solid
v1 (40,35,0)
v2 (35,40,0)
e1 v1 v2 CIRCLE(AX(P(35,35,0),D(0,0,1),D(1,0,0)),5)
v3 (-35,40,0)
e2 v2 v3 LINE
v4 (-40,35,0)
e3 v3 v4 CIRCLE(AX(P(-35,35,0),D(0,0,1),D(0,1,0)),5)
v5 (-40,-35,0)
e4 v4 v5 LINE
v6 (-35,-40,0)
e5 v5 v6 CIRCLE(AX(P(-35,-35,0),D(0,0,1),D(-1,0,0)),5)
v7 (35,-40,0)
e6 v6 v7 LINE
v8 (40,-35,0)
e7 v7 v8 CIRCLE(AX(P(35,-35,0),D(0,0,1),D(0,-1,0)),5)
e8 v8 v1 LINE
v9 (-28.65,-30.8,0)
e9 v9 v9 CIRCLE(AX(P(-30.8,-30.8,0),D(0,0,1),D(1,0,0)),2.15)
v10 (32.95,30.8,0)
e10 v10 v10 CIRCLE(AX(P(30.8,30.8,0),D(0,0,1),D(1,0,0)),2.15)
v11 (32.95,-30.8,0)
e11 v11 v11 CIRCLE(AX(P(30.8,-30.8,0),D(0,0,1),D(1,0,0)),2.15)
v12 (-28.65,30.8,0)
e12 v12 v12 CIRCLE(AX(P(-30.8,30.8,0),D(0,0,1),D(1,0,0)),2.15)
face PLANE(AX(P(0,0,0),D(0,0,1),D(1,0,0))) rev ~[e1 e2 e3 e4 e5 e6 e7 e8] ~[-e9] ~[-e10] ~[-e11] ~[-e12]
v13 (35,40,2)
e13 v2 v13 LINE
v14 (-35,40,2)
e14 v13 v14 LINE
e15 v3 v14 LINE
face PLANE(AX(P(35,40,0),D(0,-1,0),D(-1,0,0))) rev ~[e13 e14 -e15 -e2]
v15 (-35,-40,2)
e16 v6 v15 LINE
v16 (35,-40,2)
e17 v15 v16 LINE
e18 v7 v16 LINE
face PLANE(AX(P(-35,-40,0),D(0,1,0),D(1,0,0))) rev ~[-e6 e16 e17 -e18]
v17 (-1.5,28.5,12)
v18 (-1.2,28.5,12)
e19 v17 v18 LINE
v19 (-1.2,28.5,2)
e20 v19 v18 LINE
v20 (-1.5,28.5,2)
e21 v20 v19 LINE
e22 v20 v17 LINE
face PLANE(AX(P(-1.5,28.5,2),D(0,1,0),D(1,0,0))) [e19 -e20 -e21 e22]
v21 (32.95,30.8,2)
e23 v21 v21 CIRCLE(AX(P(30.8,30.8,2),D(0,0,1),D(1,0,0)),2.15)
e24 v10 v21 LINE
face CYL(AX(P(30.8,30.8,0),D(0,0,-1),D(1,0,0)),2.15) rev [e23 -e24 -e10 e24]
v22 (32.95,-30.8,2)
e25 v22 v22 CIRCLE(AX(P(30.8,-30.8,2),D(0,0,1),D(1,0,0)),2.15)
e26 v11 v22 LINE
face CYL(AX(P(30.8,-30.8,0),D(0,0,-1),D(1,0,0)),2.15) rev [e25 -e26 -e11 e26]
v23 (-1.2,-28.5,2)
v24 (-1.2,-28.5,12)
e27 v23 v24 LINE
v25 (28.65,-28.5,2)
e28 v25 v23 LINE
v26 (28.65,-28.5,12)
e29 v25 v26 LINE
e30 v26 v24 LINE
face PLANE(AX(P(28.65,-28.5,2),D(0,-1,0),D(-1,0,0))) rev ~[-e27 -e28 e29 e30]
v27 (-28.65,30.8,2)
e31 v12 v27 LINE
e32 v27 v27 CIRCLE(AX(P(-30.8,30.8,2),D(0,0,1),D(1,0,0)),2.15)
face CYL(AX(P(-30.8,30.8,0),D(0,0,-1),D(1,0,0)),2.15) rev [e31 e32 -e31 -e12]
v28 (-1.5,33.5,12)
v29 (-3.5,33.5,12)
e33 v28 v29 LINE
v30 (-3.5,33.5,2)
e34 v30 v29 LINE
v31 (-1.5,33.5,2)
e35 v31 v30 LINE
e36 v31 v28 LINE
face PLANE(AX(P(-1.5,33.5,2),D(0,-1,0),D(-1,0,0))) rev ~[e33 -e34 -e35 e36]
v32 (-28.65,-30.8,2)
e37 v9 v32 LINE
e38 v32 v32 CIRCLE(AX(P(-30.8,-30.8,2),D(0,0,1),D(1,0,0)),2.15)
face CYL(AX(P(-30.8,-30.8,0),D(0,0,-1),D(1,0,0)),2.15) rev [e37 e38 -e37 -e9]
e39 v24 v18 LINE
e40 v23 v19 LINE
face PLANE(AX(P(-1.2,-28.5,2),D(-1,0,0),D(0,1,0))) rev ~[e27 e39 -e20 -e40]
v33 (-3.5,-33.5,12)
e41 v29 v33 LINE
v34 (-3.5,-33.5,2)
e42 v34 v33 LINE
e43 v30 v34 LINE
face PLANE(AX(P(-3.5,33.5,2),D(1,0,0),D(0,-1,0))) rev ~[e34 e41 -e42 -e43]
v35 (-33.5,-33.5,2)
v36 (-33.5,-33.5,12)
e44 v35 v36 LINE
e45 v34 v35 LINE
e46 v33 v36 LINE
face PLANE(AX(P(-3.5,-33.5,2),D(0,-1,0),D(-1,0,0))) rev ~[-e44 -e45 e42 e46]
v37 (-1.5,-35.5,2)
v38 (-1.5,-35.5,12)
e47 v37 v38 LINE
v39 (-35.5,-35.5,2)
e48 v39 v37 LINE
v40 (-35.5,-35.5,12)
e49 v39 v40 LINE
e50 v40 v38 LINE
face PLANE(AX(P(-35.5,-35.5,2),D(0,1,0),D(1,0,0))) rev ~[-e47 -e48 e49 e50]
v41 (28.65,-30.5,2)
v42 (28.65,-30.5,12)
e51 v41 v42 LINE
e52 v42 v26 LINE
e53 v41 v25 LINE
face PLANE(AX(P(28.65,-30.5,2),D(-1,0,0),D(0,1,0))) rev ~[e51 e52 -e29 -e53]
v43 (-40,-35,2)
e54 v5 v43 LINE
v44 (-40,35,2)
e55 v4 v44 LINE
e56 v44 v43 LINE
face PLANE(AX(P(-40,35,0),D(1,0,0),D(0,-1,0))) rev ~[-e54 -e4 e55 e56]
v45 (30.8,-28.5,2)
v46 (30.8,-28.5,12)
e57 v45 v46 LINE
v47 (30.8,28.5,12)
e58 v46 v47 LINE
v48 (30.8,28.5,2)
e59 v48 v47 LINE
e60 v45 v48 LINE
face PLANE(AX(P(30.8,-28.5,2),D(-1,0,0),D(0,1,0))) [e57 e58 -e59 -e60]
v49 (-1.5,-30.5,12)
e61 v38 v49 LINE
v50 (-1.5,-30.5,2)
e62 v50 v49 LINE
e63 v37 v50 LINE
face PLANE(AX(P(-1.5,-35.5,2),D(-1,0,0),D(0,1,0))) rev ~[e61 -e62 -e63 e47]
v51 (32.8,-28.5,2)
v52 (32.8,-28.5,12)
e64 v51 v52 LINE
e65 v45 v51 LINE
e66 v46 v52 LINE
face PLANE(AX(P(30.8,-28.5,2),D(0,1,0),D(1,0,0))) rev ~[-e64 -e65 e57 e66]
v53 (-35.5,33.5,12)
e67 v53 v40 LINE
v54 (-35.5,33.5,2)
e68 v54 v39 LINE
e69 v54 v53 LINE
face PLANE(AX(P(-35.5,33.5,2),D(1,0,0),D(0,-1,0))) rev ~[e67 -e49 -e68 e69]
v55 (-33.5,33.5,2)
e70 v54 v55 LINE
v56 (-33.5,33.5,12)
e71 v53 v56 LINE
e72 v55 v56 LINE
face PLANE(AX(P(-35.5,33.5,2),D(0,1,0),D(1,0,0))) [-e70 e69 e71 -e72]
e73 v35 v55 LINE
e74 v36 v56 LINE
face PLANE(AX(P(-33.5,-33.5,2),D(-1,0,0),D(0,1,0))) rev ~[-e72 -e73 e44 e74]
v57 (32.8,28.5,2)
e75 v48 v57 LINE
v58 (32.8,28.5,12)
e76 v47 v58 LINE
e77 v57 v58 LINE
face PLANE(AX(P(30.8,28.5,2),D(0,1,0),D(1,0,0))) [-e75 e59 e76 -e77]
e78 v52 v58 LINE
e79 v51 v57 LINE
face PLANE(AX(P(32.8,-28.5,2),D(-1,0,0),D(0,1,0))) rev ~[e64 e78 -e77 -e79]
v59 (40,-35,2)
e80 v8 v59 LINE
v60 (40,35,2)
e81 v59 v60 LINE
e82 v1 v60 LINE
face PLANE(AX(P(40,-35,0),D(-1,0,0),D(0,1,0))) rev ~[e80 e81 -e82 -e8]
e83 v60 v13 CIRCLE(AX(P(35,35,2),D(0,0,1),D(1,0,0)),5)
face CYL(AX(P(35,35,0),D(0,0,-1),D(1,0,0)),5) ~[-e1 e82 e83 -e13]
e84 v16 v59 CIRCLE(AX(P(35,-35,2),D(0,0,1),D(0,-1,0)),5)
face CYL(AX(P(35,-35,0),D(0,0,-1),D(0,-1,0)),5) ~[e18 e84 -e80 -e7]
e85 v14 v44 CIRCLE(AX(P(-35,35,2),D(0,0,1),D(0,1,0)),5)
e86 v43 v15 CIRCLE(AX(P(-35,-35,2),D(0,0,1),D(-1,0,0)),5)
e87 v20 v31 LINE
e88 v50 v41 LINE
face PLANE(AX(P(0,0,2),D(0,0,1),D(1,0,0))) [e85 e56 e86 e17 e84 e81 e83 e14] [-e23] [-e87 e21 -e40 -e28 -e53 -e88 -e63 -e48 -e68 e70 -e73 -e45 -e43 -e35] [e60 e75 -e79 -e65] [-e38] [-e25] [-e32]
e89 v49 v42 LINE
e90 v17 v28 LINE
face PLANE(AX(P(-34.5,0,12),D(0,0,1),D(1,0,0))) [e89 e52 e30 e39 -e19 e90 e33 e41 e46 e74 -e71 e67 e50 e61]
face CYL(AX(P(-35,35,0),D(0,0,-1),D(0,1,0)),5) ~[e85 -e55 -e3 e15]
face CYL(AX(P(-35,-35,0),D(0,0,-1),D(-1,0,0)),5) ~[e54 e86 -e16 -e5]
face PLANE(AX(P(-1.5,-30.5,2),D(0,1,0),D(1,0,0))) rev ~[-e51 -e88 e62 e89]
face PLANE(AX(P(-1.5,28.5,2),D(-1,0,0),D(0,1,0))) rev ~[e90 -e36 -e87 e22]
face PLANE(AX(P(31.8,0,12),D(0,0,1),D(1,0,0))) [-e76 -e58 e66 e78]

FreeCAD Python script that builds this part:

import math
import FreeCAD as App
import Part
import Sketcher

V = App.Vector
Q = App.Units.Quantity


def add_polygon(sketch, points):
    """Adds a closed chain of lines whose ends are joined by coincident constraints."""
    first, n = sketch.GeometryCount, len(points)
    for a, b in zip(points, points[1:] + points[:1]):
        sketch.addGeometry(Part.LineSegment(App.Vector(*a, 0), App.Vector(*b, 0)), False)
    for i in range(n):
        sketch.addConstraint(Sketcher.Constraint("Coincident", first + i, 2, first + (i + 1) % n, 1))

doc = App.newDocument("Part")
params = doc.addObject("Spreadsheet::Sheet", "Params")
for row, (alias, value) in enumerate([
    ("sketch1_radius", "5 mm"),
    ("sketch1_diameter", "4.3 mm"),
    ("sketch1_width", "70 mm"),
    ("pad1_length", "2 mm"),
    ("sketch2_width", "34 mm"),
    ("sketch2_width2", "2 mm"),
    ("sketch2_height", "69 mm"),
    ("sketch2_height2", "5 mm"),
    ("sketch2_height3", "67 mm"),
    ("pad2_length", "10 mm"),
], start=1):
    params.set(f"A{row}", alias)
    params.set(f"B{row}", "=" + value)
    params.setAlias(f"B{row}", alias)

body = doc.addObject("PartDesign::Body", "Body")

sketch1 = doc.addObject("Sketcher::SketchObject", "Sketch")
body.addObject(sketch1)
sketch1.AttachmentSupport = (doc.XY_Plane, [""])
sketch1.MapMode = "FlatFace"
sketch1.addGeometry(Part.LineSegment(V(-35, -40, 0), V(35, -40, 0)), False)
sketch1.addGeometry(Part.ArcOfCircle(Part.Circle(V(35, -35, 0), V(0, 0, 1), 5), math.radians(-90), math.radians(0)), False)
sketch1.addGeometry(Part.LineSegment(V(40, -35, 0), V(40, 35, 0)), False)
sketch1.addGeometry(Part.ArcOfCircle(Part.Circle(V(35, 35, 0), V(0, 0, 1), 5), math.radians(0), math.radians(90)), False)
sketch1.addGeometry(Part.LineSegment(V(35, 40, 0), V(-35, 40, 0)), False)
sketch1.addGeometry(Part.ArcOfCircle(Part.Circle(V(-35, 35, 0), V(0, 0, 1), 5), math.radians(90), math.radians(180)), False)
sketch1.addGeometry(Part.LineSegment(V(-40, 35, 0), V(-40, -35, 0)), False)
sketch1.addGeometry(Part.ArcOfCircle(Part.Circle(V(-35, -35, 0), V(0, 0, 1), 5), math.radians(180), math.radians(270)), False)
sketch1.addGeometry(Part.Circle(V(-30.8, -30.8, 0), V(0, 0, 1), 2.15), False)
sketch1.addGeometry(Part.Circle(V(30.8, -30.8, 0), V(0, 0, 1), 2.15), False)
sketch1.addGeometry(Part.Circle(V(-30.8, 30.8, 0), V(0, 0, 1), 2.15), False)
sketch1.addGeometry(Part.Circle(V(30.8, 30.8, 0), V(0, 0, 1), 2.15), False)
sketch1.addConstraint(Sketcher.Constraint("Tangent", 0, 2, 1, 1))
sketch1.addConstraint(Sketcher.Constraint("Tangent", 1, 2, 2, 1))
sketch1.addConstraint(Sketcher.Constraint("Tangent", 2, 2, 3, 1))
sketch1.addConstraint(Sketcher.Constraint("Tangent", 3, 2, 4, 1))
sketch1.addConstraint(Sketcher.Constraint("Tangent", 4, 2, 5, 1))
sketch1.addConstraint(Sketcher.Constraint("Tangent", 5, 2, 6, 1))
sketch1.addConstraint(Sketcher.Constraint("Tangent", 6, 2, 7, 1))
sketch1.addConstraint(Sketcher.Constraint("Tangent", 7, 2, 0, 1))
sketch1.addConstraint(Sketcher.Constraint("Horizontal", 0))
sketch1.addConstraint(Sketcher.Constraint("Vertical", 2))
sketch1.addConstraint(Sketcher.Constraint("Horizontal", 4))
sketch1.addConstraint(Sketcher.Constraint("Vertical", 6))
sketch1.addConstraint(Sketcher.Constraint("Equal", 1, 3))
sketch1.addConstraint(Sketcher.Constraint("Equal", 3, 5))
sketch1.addConstraint(Sketcher.Constraint("Equal", 5, 7))
sketch1.addConstraint(Sketcher.Constraint("Equal", 8, 9))
sketch1.addConstraint(Sketcher.Constraint("Equal", 9, 10))
sketch1.addConstraint(Sketcher.Constraint("Equal", 10, 11))
sketch1.addConstraint(Sketcher.Constraint("Symmetric", 1, 3, 5, 3, -1, 1))
sketch1.addConstraint(Sketcher.Constraint("Symmetric", 9, 3, 10, 3, -1, 1))
sketch1.addConstraint(Sketcher.Constraint("Symmetric", 8, 3, 11, 3, -1, 1))
sketch1.addConstraint(Sketcher.Constraint("Symmetric", 8, 3, 9, 3, -2))
sketch1.addConstraint(Sketcher.Constraint("Equal", 4, 2))
sketch1.addConstraint(Sketcher.Constraint("Radius", 1, Q("5 mm")))
sketch1.addConstraint(Sketcher.Constraint("Diameter", 8, Q("4.3 mm")))
sketch1.addConstraint(Sketcher.Constraint("DistanceX", 0, 1, 0, 2, Q("70 mm")))
sketch1.addConstraint(Sketcher.Constraint("DistanceX", 8, 3, -1, 1, Q("30.8 mm")))
sketch1.addConstraint(Sketcher.Constraint("DistanceY", 8, 3, -1, 1, Q("30.8 mm")))
sketch1.setExpression("Constraints[23]", "Params.sketch1_radius")
sketch1.setExpression("Constraints[24]", "Params.sketch1_diameter")
sketch1.setExpression("Constraints[25]", "Params.sketch1_width")
pad1 = doc.addObject("PartDesign::Pad", "Pad")
body.addObject(pad1)
pad1.Profile = sketch1
pad1.setExpression("Length", "Params.pad1_length")

sketch2 = doc.addObject("Sketcher::SketchObject", "Sketch001")
body.addObject(sketch2)
sketch2.AttachmentSupport = (doc.XY_Plane, [""])
sketch2.MapMode = "FlatFace"
sketch2.AttachmentOffset = App.Placement(V(0, 0, 2), App.Rotation())
add_polygon(sketch2, [(-35.5, 33.5), (-35.5, -35.5), (-1.5, -35.5), (-1.5, -30.5), (28.65, -30.5), (28.65, -28.5), (-1.2, -28.5), (-1.2, 28.5), (-1.5, 28.5), (-1.5, 33.5), (-3.5, 33.5), (-3.5, -33.5), (-33.5, -33.5), (-33.5, 33.5)])
add_polygon(sketch2, [(30.8, 28.5), (30.8, -28.5), (32.8, -28.5), (32.8, 28.5)])
sketch2.addConstraint(Sketcher.Constraint("Vertical", 0))
sketch2.addConstraint(Sketcher.Constraint("Horizontal", 1))
sketch2.addConstraint(Sketcher.Constraint("Vertical", 2))
sketch2.addConstraint(Sketcher.Constraint("Horizontal", 3))
sketch2.addConstraint(Sketcher.Constraint("Vertical", 4))
sketch2.addConstraint(Sketcher.Constraint("Horizontal", 5))
sketch2.addConstraint(Sketcher.Constraint("Vertical", 6))
sketch2.addConstraint(Sketcher.Constraint("Horizontal", 7))
sketch2.addConstraint(Sketcher.Constraint("Vertical", 8))
sketch2.addConstraint(Sketcher.Constraint("Horizontal", 9))
sketch2.addConstraint(Sketcher.Constraint("Vertical", 10))
sketch2.addConstraint(Sketcher.Constraint("Horizontal", 11))
sketch2.addConstraint(Sketcher.Constraint("Vertical", 12))
sketch2.addConstraint(Sketcher.Constraint("Horizontal", 13))
sketch2.addConstraint(Sketcher.Constraint("Vertical", 14))
sketch2.addConstraint(Sketcher.Constraint("Horizontal", 15))
sketch2.addConstraint(Sketcher.Constraint("Vertical", 16))
sketch2.addConstraint(Sketcher.Constraint("Horizontal", 17))
sketch2.addConstraint(Sketcher.Constraint("Horizontal", 9, 2, 12, 2))
sketch2.addConstraint(Sketcher.Constraint("Horizontal", 5, 2, 14, 2))
sketch2.addConstraint(Sketcher.Constraint("Horizontal", 7, 2, 16, 2))
sketch2.addConstraint(Sketcher.Constraint("Vertical", 2, 2, 7, 2))
sketch2.addConstraint(Sketcher.Constraint("Equal", 9, 13))
sketch2.addConstraint(Sketcher.Constraint("Equal", 13, 15))
sketch2.addConstraint(Sketcher.Constraint("Equal", 17, 4))
sketch2.addConstraint(Sketcher.Constraint("Equal", 2, 8))
sketch2.addConstraint(Sketcher.Constraint("DistanceX", 1, 1, 1, 2, Q("34 mm")))
sketch2.addConstraint(Sketcher.Constraint("DistanceX", 9, 2, 9, 1, Q("2 mm")))
sketch2.addConstraint(Sketcher.Constraint("DistanceY", 0, 2, 0, 1, Q("69 mm")))
sketch2.addConstraint(Sketcher.Constraint("DistanceY", 2, 1, 2, 2, Q("5 mm")))
sketch2.addConstraint(Sketcher.Constraint("DistanceY", 10, 2, 10, 1, Q("67 mm")))
sketch2.addConstraint(Sketcher.Constraint("DistanceX", 7, 2, 7, 1, Q("0.3 mm")))
sketch2.addConstraint(Sketcher.Constraint("DistanceX", 5, 2, 14, 2, Q("32 mm")))
sketch2.addConstraint(Sketcher.Constraint("DistanceX", 3, 1, 3, 2, Q("30.15 mm")))
sketch2.addConstraint(Sketcher.Constraint("DistanceX", 0, 2, -1, 1, Q("35.5 mm")))
sketch2.addConstraint(Sketcher.Constraint("DistanceY", 0, 2, -1, 1, Q("35.5 mm")))
sketch2.setExpression("Constraints[44]", "Params.sketch2_width")
sketch2.setExpression("Constraints[45]", "Params.sketch2_width2")
sketch2.setExpression("Constraints[46]", "Params.sketch2_height")
sketch2.setExpression("Constraints[47]", "Params.sketch2_height2")
sketch2.setExpression("Constraints[48]", "Params.sketch2_height3")
pad2 = doc.addObject("PartDesign::Pad", "Pad001")
body.addObject(pad2)
pad2.Profile = sketch2
pad2.setExpression("Length", "Params.pad2_length")

doc.recompute()
